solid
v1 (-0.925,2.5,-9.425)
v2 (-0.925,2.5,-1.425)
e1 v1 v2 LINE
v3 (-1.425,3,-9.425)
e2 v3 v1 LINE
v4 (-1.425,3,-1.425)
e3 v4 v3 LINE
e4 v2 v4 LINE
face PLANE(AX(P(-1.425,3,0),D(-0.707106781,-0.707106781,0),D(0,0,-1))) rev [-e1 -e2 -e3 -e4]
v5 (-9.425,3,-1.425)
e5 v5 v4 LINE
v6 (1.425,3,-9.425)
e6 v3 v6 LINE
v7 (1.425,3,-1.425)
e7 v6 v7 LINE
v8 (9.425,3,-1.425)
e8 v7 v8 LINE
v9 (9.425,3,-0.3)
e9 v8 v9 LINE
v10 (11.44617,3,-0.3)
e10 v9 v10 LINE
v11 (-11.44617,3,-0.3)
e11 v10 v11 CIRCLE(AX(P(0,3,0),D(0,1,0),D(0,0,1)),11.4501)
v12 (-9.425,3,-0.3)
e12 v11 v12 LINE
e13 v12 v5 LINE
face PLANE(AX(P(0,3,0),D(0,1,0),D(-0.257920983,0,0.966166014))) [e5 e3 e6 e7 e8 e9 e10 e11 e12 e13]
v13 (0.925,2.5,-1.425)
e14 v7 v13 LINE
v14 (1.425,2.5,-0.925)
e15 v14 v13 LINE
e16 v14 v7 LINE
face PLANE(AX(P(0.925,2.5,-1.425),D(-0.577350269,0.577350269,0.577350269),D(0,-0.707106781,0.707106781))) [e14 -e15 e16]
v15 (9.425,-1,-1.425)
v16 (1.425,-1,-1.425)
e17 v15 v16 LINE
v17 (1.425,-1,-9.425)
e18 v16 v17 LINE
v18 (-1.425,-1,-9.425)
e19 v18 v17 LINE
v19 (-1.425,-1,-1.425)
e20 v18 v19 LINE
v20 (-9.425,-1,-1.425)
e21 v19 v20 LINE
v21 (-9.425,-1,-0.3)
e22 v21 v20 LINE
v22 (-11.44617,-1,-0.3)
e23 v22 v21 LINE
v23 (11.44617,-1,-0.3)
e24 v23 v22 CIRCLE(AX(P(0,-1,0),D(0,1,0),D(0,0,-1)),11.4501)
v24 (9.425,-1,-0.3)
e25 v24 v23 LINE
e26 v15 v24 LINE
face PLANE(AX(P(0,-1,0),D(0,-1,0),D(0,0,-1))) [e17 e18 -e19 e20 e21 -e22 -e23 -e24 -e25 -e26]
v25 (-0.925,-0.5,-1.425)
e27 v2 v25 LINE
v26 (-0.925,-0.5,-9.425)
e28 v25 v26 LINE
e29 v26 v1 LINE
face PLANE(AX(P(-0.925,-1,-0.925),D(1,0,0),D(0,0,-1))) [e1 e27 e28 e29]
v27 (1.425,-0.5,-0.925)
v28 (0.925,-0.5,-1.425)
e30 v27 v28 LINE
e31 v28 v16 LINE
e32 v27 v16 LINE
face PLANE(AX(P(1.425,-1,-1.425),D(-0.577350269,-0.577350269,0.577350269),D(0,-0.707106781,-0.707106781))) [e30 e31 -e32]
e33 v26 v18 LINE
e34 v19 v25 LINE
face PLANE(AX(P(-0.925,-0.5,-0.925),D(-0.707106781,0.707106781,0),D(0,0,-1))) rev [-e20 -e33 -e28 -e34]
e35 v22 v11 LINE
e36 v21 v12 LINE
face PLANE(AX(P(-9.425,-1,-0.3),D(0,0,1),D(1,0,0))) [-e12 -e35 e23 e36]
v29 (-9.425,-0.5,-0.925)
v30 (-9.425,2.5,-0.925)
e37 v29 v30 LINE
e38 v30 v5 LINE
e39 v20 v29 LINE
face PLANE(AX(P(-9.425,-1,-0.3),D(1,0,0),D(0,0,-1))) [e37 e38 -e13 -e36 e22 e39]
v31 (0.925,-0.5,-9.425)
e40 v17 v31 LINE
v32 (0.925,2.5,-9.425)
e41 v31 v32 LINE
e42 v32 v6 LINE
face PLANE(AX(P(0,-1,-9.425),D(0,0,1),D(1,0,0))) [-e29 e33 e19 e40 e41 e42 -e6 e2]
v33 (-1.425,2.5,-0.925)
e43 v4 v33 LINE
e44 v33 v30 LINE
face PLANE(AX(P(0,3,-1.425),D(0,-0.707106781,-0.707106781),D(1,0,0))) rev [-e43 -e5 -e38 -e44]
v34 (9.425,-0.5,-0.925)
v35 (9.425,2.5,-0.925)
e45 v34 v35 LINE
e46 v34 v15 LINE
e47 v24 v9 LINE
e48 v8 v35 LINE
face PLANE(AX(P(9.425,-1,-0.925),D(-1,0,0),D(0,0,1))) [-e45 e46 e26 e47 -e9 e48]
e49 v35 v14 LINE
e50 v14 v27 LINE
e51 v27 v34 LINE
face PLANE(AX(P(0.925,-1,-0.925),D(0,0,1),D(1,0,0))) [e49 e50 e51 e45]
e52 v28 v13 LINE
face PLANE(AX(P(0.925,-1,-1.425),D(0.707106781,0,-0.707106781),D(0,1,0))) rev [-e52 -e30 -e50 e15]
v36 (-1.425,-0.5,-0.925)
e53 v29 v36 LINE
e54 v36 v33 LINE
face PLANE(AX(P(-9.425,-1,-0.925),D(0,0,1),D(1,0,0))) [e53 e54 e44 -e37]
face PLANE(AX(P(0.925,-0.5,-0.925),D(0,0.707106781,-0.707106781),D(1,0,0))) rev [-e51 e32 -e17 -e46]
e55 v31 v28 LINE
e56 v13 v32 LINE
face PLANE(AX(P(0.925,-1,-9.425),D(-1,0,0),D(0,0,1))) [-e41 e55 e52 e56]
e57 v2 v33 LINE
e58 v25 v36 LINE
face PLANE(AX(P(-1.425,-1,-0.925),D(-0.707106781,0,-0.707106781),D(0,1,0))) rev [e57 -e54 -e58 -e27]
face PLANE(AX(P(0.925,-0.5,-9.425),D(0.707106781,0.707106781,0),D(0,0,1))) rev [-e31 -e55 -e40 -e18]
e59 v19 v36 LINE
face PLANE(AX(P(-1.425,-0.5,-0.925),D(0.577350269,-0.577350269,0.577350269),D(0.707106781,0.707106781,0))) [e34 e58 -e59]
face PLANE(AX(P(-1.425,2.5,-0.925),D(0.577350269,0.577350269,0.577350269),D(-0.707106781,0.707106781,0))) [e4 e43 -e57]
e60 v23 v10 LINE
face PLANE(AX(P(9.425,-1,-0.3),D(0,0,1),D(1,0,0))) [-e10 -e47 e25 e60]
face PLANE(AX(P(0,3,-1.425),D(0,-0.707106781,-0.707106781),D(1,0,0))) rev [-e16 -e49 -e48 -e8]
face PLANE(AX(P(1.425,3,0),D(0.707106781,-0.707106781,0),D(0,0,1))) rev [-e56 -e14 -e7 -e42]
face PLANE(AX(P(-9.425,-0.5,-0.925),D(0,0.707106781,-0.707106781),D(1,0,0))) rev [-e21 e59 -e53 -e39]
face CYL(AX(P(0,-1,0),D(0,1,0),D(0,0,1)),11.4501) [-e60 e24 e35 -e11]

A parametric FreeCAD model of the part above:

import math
import FreeCAD as App
import Part
import Sketcher


def edges_at(feature, points):
    """Names of the edges that pass closest to the given points."""
    edges = feature.Shape.Edges
    near = lambda p: min(range(len(edges)), key=lambda i: edges[i].distToShape(Part.Vertex(*p))[0])
    return sorted({f"Edge{near(p) + 1}" for p in points})

doc = App.newDocument("Part")
body = doc.addObject("PartDesign::Body", "Body")

# Sketch on XZ plane
sketch1 = body.newObject("Sketcher::SketchObject", "Sketch")
sketch1.AttachmentSupport = (doc.getObject("XZ_Plane"), [""])
sketch1.MapMode = "FlatFace"
sketch1.addGeometry(Part.LineSegment(App.Vector(-9.4, -0.3, 0), App.Vector(-9.4, -0.9, 0)), False)
sketch1.addGeometry(Part.LineSegment(App.Vector(-9.4, -0.9, 0), App.Vector(-0.9, -0.9, 0)), False)
sketch1.addGeometry(Part.LineSegment(App.Vector(-0.9, -0.9, 0), App.Vector(-0.9, -9.4, 0)), False)
sketch1.addGeometry(Part.LineSegment(App.Vector(-0.9, -9.4, 0), App.Vector(0.9, -9.4, 0)), False)
sketch1.addGeometry(Part.LineSegment(App.Vector(0.9, -9.4, 0), App.Vector(0.9, -0.9, 0)), False)
sketch1.addGeometry(Part.LineSegment(App.Vector(0.9, -0.9, 0), App.Vector(9.4, -0.9, 0)), False)
sketch1.addGeometry(Part.LineSegment(App.Vector(9.4, -0.9, 0), App.Vector(9.4, -0.3, 0)), False)
sketch1.addGeometry(Part.LineSegment(App.Vector(9.4, -0.3, 0), App.Vector(11.4, -0.3, 0)), False)
sketch1.addGeometry(Part.ArcOfCircle(Part.Circle(App.Vector(0, 0, 0), App.Vector(0, 0, 1), 11.5), math.radians(-178), math.radians(-2)), False)
sketch1.addGeometry(Part.LineSegment(App.Vector(-11.4, -0.3, 0), App.Vector(-9.4, -0.3, 0)), False)
sketch1.addConstraint(Sketcher.Constraint("Coincident", 0, 2, 1, 1))
sketch1.addConstraint(Sketcher.Constraint("Coincident", 1, 2, 2, 1))
sketch1.addConstraint(Sketcher.Constraint("Coincident", 2, 2, 3, 1))
sketch1.addConstraint(Sketcher.Constraint("Coincident", 3, 2, 4, 1))
sketch1.addConstraint(Sketcher.Constraint("Coincident", 4, 2, 5, 1))
sketch1.addConstraint(Sketcher.Constraint("Coincident", 5, 2, 6, 1))
sketch1.addConstraint(Sketcher.Constraint("Coincident", 6, 2, 7, 1))
sketch1.addConstraint(Sketcher.Constraint("Coincident", 7, 2, 8, 2))
sketch1.addConstraint(Sketcher.Constraint("Coincident", 8, 1, 9, 1))
sketch1.addConstraint(Sketcher.Constraint("Coincident", 9, 2, 0, 1))
sketch1.addConstraint(Sketcher.Constraint("Vertical", 0))
sketch1.addConstraint(Sketcher.Constraint("Horizontal", 1))
sketch1.addConstraint(Sketcher.Constraint("Vertical", 2))
sketch1.addConstraint(Sketcher.Constraint("Horizontal", 3))
sketch1.addConstraint(Sketcher.Constraint("Vertical", 4))
sketch1.addConstraint(Sketcher.Constraint("Horizontal", 5))
sketch1.addConstraint(Sketcher.Constraint("Vertical", 6))
sketch1.addConstraint(Sketcher.Constraint("Horizontal", 7))
sketch1.addConstraint(Sketcher.Constraint("Horizontal", 9))
sketch1.addConstraint(Sketcher.Constraint("Coincident", 8, 3, -1, 1))
sketch1.addConstraint(Sketcher.Constraint("Symmetric", 1, 2, 4, 2, -2))
sketch1.addConstraint(Sketcher.Constraint("Symmetric", 6, 2, 9, 2, -2))
sketch1.addConstraint(Sketcher.Constraint("Equal", 5, 2))
sketch1.addConstraint(Sketcher.Constraint("DistanceX", 1, 1, 1, 2, 8.5))
sketch1.addConstraint(Sketcher.Constraint("DistanceX", 3, 1, 3, 2, 1.85))
sketch1.addConstraint(Sketcher.Constraint("DistanceY", 6, 2, -1, 1, 0.3))
sketch1.addConstraint(Sketcher.Constraint("Radius", 8, 11.4501))
sketch1.addConstraint(Sketcher.Constraint("DistanceY", 0, 2, 0, 1, 0.625))
pad1 = body.newObject("PartDesign::Pad", "Pad")
pad1.Profile = sketch1
pad1.Type = "TwoLengths"
pad1.Length = 3
pad1.Length2 = 1
pad1.Reversed = True
doc.recompute()

chamfer = body.newObject("PartDesign::Chamfer", "Chamfer")
chamfer.Base = (pad1, edges_at(pad1, [
    (-5.175, -1, -0.925),
    (-0.925, -1, -5.175),
    (0.925, 1, -0.925),
    (-0.925, 1, -0.925),
    (0.925, -1, -5.175),
    (-5.175, 3, -0.925),
    (-0.925, 3, -5.175),
    (0.925, 3, -5.175),
    (5.175, 3, -0.925),
    (5.175, -1, -0.925),
]))
chamfer.Size = 0.5

doc.recompute()
